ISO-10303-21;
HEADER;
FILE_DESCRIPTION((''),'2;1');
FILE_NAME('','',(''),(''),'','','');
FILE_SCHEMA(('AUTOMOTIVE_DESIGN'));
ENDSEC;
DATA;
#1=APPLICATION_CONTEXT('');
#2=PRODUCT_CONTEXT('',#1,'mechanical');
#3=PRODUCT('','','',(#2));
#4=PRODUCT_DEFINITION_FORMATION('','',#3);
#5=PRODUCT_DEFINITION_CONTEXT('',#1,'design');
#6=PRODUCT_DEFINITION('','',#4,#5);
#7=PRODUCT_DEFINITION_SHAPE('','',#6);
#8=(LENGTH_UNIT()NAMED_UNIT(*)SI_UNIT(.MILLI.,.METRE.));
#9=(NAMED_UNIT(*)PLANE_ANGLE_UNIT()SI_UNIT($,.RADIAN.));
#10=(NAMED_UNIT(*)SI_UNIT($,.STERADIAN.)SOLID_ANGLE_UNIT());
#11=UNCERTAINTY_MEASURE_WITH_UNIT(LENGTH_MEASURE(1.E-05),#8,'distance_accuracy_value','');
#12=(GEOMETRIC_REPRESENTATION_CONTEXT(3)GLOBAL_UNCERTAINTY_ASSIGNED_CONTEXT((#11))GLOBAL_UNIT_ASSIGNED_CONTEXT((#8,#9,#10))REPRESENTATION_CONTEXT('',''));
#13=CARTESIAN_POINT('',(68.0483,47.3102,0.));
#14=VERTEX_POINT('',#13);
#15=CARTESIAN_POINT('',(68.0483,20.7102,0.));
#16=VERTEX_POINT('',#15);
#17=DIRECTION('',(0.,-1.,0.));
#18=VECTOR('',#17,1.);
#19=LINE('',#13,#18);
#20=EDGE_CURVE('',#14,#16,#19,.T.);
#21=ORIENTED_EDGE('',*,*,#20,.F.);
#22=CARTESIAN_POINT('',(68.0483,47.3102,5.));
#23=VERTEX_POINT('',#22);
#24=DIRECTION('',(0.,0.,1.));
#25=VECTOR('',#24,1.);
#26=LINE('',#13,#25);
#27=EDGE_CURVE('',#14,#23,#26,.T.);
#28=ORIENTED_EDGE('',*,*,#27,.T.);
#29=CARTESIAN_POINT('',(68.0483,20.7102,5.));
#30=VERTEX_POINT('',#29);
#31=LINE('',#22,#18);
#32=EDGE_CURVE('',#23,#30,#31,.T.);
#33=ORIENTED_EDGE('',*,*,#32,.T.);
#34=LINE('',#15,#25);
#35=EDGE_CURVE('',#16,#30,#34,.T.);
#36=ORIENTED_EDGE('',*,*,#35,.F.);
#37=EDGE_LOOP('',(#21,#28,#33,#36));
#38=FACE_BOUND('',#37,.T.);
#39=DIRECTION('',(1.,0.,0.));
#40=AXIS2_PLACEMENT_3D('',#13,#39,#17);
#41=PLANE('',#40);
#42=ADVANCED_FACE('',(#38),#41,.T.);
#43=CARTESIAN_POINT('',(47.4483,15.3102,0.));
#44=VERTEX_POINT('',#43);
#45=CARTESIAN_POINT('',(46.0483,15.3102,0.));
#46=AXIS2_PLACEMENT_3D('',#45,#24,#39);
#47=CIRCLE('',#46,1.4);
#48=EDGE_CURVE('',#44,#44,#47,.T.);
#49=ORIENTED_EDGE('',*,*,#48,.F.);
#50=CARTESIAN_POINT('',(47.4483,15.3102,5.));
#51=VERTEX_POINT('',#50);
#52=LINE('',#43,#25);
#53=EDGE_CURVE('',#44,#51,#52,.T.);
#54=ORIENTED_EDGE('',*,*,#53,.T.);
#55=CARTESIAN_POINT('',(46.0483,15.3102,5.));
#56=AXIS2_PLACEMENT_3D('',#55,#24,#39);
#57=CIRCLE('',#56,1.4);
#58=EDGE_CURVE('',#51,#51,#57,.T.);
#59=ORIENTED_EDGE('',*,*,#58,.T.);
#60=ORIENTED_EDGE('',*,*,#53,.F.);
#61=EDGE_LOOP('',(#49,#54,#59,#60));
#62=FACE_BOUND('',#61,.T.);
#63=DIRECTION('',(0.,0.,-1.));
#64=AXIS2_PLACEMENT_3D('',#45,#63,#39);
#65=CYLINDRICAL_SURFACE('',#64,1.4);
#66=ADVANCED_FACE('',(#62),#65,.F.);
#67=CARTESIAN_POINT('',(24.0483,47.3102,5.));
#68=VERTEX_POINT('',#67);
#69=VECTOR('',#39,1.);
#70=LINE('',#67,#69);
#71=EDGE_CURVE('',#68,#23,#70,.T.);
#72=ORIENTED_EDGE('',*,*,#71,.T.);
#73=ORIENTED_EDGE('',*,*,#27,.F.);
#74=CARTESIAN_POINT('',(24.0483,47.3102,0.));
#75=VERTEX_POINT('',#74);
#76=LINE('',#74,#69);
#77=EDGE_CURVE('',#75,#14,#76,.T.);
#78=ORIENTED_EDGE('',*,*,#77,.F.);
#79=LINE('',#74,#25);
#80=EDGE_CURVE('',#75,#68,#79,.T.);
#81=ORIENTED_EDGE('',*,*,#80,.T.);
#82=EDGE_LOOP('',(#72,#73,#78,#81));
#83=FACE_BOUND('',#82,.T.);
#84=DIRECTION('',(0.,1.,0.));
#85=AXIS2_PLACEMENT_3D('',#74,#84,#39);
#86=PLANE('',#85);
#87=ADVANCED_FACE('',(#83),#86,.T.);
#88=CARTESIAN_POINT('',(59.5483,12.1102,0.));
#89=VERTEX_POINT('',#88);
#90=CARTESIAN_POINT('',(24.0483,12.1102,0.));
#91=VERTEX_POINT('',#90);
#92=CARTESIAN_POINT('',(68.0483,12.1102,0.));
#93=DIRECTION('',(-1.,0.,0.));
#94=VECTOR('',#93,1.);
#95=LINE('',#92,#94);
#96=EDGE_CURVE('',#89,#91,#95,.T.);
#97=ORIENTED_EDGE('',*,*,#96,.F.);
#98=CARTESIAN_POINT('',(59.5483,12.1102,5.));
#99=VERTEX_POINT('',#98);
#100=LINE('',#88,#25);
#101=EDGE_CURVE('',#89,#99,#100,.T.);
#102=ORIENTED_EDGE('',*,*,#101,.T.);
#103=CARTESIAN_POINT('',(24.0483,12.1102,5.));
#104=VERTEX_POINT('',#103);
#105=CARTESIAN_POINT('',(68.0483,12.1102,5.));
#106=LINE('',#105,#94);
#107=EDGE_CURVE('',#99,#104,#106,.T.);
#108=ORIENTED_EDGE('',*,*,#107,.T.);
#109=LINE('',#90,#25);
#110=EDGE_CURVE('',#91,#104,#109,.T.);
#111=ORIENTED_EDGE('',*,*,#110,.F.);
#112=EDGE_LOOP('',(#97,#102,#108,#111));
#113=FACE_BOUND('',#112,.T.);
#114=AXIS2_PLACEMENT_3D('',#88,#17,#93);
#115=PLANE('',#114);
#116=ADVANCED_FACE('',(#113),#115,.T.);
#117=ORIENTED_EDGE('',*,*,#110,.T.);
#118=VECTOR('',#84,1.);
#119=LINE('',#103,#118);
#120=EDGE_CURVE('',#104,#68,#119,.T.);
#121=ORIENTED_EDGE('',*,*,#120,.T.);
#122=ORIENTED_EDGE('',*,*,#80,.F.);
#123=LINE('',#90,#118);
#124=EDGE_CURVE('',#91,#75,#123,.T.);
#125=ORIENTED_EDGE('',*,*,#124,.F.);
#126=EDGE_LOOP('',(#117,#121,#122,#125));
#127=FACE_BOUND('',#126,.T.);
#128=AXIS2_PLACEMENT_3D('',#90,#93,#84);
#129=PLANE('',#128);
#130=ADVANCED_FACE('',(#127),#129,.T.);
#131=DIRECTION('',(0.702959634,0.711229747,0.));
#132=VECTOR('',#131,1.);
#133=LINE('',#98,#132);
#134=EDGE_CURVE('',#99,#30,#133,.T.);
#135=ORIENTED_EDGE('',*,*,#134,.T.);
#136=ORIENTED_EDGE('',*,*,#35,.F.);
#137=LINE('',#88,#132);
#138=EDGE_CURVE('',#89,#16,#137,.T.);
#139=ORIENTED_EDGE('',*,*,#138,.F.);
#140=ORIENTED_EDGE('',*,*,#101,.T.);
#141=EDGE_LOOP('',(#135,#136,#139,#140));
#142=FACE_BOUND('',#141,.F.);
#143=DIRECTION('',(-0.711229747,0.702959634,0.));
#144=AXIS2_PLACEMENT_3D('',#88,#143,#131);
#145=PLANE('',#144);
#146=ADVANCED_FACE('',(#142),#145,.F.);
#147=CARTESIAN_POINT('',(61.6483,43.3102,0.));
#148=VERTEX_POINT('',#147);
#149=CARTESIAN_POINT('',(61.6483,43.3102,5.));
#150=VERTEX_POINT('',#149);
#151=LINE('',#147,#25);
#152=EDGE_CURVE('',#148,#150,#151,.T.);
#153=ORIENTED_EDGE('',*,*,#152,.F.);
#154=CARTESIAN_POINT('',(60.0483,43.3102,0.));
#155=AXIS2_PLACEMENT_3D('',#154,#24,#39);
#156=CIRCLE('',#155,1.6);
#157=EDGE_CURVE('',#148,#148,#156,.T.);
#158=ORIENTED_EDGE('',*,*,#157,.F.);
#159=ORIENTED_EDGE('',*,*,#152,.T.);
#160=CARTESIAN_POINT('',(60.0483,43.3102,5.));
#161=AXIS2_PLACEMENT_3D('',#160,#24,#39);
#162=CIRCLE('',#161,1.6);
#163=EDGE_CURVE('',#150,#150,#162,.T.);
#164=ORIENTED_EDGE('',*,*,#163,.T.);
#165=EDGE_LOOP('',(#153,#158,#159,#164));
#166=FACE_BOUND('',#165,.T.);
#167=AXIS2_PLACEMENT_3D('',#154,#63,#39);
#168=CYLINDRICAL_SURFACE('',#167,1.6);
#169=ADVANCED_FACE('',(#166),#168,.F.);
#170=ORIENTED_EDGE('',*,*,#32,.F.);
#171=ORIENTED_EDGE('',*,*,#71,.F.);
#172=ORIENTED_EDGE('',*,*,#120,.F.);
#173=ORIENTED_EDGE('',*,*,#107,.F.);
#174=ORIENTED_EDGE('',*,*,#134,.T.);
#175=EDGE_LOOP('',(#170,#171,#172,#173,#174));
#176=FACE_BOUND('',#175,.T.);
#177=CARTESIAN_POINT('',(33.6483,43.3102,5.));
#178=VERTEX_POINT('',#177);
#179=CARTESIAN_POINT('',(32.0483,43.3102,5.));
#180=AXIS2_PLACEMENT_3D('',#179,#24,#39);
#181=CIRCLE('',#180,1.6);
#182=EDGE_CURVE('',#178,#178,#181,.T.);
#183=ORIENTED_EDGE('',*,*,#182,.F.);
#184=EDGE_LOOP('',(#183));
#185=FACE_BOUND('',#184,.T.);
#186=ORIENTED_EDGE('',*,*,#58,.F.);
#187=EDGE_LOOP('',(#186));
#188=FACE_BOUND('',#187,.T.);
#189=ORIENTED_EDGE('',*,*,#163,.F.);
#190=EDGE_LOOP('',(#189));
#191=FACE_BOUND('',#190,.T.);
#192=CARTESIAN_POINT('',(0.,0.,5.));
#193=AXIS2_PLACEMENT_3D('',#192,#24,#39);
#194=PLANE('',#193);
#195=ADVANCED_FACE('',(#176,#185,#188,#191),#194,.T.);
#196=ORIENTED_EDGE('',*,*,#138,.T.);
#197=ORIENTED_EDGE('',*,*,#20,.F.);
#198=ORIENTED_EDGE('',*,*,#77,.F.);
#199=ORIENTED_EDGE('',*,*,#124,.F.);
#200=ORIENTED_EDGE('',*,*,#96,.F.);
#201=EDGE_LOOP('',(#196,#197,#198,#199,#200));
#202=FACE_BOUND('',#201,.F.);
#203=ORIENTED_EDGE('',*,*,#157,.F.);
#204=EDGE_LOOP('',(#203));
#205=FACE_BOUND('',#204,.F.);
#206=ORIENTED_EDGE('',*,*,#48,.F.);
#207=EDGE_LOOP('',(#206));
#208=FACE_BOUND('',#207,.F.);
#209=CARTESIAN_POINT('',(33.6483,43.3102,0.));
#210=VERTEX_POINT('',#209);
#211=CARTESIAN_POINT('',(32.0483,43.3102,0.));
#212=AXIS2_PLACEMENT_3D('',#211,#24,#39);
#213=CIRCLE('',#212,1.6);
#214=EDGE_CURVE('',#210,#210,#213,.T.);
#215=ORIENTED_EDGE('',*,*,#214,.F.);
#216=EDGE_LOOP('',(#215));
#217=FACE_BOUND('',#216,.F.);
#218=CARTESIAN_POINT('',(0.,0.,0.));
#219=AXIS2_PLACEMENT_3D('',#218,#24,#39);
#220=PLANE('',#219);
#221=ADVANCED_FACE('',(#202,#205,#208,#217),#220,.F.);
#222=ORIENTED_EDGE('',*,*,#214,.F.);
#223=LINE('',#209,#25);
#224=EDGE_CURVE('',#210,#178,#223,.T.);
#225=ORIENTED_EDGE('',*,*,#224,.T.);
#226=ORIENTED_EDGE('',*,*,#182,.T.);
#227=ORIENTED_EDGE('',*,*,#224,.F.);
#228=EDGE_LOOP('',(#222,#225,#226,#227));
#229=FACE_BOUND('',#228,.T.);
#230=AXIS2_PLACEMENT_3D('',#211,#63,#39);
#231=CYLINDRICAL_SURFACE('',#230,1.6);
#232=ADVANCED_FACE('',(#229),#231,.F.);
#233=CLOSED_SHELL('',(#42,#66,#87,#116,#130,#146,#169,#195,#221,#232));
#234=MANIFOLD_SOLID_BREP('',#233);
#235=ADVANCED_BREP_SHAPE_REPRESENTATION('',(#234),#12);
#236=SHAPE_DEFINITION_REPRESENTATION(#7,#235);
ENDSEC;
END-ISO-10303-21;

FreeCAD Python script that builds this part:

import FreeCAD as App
import Part
import Sketcher
from FreeCAD import Vector
Q = App.Units.Quantity


def add_polygon(sketch, points):
    """Adds a closed chain of lines whose ends are joined by coincident constraints."""
    first, n = sketch.GeometryCount, len(points)
    for a, b in zip(points, points[1:] + points[:1]):
        sketch.addGeometry(Part.LineSegment(App.Vector(*a, 0), App.Vector(*b, 0)), False)
    for i in range(n):
        sketch.addConstraint(Sketcher.Constraint("Coincident", first + i, 2, first + (i + 1) % n, 1))

doc = App.newDocument("Part")
body = doc.addObject("PartDesign::Body", "Body")

# Sketch on XY plane
sketch1 = body.newObject("Sketcher::SketchObject", "Sketch")
sketch1.AttachmentSupport = (doc.getObject("XY_Plane"), [""])
sketch1.MapMode = "FlatFace"
add_polygon(sketch1, [(68.0483, 47.3102), (24.0483, 47.3102), (24.0483, 12.1102), (59.5483, 12.1102), (68.0483, 20.7102)])  # lines 0-4
sketch1.addGeometry(Part.Circle(Vector(46.0483, 15.3102, 0), Vector(0, 0, 1), 1.4), False)  # 5
sketch1.addGeometry(Part.Circle(Vector(32.0483, 43.3102, 0), Vector(0, 0, 1), 1.6), False)  # 6
sketch1.addGeometry(Part.Circle(Vector(60.0483, 43.3102, 0), Vector(0, 0, 1), 1.6), False)  # 7
sketch1.addConstraint([
    Sketcher.Constraint("Horizontal", 0),
    Sketcher.Constraint("Vertical", 1),
    Sketcher.Constraint("Horizontal", 2),
    Sketcher.Constraint("Vertical", 4),
    Sketcher.Constraint("Equal", 6, 7),
    Sketcher.Constraint("Horizontal", 6, 3, 7, 3),
    Sketcher.Constraint("Diameter", 5, Q("2.8 mm")),
    Sketcher.Constraint("Diameter", 6, Q("3.2 mm")),
    Sketcher.Constraint("DistanceX", 0, 2, 0, 1, Q("44 mm")),
    Sketcher.Constraint("DistanceY", 1, 2, 1, 1, Q("35.2 mm")),
    Sketcher.Constraint("DistanceY", 5, 3, 6, 3, Q("28 mm")),
    Sketcher.Constraint("DistanceX", 6, 3, 7, 3, Q("28 mm")),
    Sketcher.Constraint("DistanceY", 6, 3, 0, 2, Q("4 mm")),
    Sketcher.Constraint("DistanceX", 2, 2, 3, 2, Q("8.5 mm")),
    Sketcher.Constraint("DistanceY", 2, 2, 3, 2, Q("8.6 mm")),
    Sketcher.Constraint("DistanceX", 6, 3, 5, 3, Q("14 mm")),
    Sketcher.Constraint("DistanceX", 0, 2, 6, 3, Q("8 mm")),
    Sketcher.Constraint("DistanceX", -1, 1, 5, 3, Q("46.0483 mm")),
    Sketcher.Constraint("DistanceY", -1, 1, 5, 3, Q("15.3102 mm")),
])
pad1 = body.newObject("PartDesign::Pad", "Pad")
pad1.Profile = sketch1
pad1.Length = 5

doc.recompute()
